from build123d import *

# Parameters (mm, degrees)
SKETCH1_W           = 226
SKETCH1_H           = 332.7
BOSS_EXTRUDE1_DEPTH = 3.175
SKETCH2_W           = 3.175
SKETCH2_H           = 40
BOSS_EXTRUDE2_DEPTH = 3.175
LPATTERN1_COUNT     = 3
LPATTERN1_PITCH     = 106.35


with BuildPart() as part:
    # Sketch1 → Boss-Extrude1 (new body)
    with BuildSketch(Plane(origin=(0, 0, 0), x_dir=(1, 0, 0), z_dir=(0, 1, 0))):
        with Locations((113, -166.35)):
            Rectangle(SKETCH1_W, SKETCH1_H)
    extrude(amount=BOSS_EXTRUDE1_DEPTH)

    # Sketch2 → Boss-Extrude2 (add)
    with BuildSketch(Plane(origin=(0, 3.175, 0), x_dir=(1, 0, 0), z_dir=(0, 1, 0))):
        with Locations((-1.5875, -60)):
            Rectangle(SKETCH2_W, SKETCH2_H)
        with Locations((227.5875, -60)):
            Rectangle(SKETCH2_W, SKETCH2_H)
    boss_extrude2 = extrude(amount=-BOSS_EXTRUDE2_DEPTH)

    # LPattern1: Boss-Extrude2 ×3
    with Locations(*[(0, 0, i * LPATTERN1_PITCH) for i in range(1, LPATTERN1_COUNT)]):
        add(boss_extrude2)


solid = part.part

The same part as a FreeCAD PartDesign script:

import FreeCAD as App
import Part
import Sketcher
from FreeCAD import Vector

doc = App.newDocument("Part")
body = doc.addObject("PartDesign::Body", "Body")

sketch1 = body.newObject("Sketcher::SketchObject", "Sketch")
sketch1.AttachmentSupport = (doc.getObject("XZ_Plane"), [""])
sketch1.MapMode = "FlatFace"
sketch1.addGeometry([
    Part.LineSegment(Vector(0, 0, 0), Vector(0, 333, 0)),
    Part.LineSegment(Vector(0, 333, 0), Vector(226, 333, 0)),
    Part.LineSegment(Vector(226, 333, 0), Vector(226, 0, 0)),
    Part.LineSegment(Vector(226, 0, 0), Vector(0, 0, 0)),
], False)
sketch1.addConstraint([
    Sketcher.Constraint("Coincident", 0, 2, 1, 1),
    Sketcher.Constraint("Coincident", 1, 2, 2, 1),
    Sketcher.Constraint("Coincident", 2, 2, 3, 1),
    Sketcher.Constraint("Coincident", 3, 2, 0, 1),
    Sketcher.Constraint("Vertical", 0),
    Sketcher.Constraint("Horizontal", 1),
    Sketcher.Constraint("Vertical", 2),
    Sketcher.Constraint("Horizontal", 3),
    Sketcher.Constraint("Coincident", 3, 2, -1, 1),
    Sketcher.Constraint("DistanceX", 1, 1, 1, 2, 226.0),
    Sketcher.Constraint("DistanceY", 0, 1, 0, 2, 332.7),
])
pad1 = body.newObject("PartDesign::Pad", "Pad")
pad1.Profile = sketch1
pad1.Length = 3.175
pad1.Reversed = True

sketch2 = body.newObject("Sketcher::SketchObject", "Sketch001")
sketch2.AttachmentSupport = (doc.getObject("XZ_Plane"), [""])
sketch2.MapMode = "FlatFace"
sketch2.AttachmentOffset = App.Placement(Vector(0, 0, -3.175), App.Rotation())
sketch2.addGeometry([
    Part.LineSegment(Vector(-3.2, 40, 0), Vector(-3.2, 80, 0)),
    Part.LineSegment(Vector(-3.2, 80, 0), Vector(0, 80, 0)),
    Part.LineSegment(Vector(0, 80, 0), Vector(0, 40, 0)),
    Part.LineSegment(Vector(0, 40, 0), Vector(-3.2, 40, 0)),
    Part.LineSegment(Vector(226, 40, 0), Vector(226, 80, 0)),
    Part.LineSegment(Vector(226, 80, 0), Vector(229.2, 80, 0)),
    Part.LineSegment(Vector(229.2, 80, 0), Vector(229.2, 40, 0)),
    Part.LineSegment(Vector(229.2, 40, 0), Vector(226, 40, 0)),
], False)
sketch2.addConstraint([
    Sketcher.Constraint("Coincident", 0, 2, 1, 1),
    Sketcher.Constraint("Coincident", 1, 2, 2, 1),
    Sketcher.Constraint("Coincident", 2, 2, 3, 1),
    Sketcher.Constraint("Coincident", 3, 2, 0, 1),
    Sketcher.Constraint("Coincident", 4, 2, 5, 1),
    Sketcher.Constraint("Coincident", 5, 2, 6, 1),
    Sketcher.Constraint("Coincident", 6, 2, 7, 1),
    Sketcher.Constraint("Coincident", 7, 2, 4, 1),
    Sketcher.Constraint("Vertical", 0),
    Sketcher.Constraint("Horizontal", 1),
    Sketcher.Constraint("Vertical", 2),
    Sketcher.Constraint("Horizontal", 3),
    Sketcher.Constraint("Vertical", 4),
    Sketcher.Constraint("Horizontal", 5),
    Sketcher.Constraint("Vertical", 6),
    Sketcher.Constraint("Horizontal", 7),
    Sketcher.Constraint("PointOnObject", 1, 2, -2),
    Sketcher.Constraint("Horizontal", 1, 2, 4, 2),
    Sketcher.Constraint("Horizontal", 3, 2, 6, 2),
    Sketcher.Constraint("Equal", 3, 5),
    Sketcher.Constraint("DistanceY", 0, 1, 0, 2, 40.0),
    Sketcher.Constraint("DistanceY", -1, 1, 0, 2, 80.0),
    Sketcher.Constraint("DistanceX", -1, 1, 4, 2, 226.0),
    Sketcher.Constraint("DistanceX", 1, 1, 1, 2, 3.175),
])
pad2 = body.newObject("PartDesign::Pad", "Pad001")
pad2.Profile = sketch2
pad2.Length = 3.175
doc.recompute()

linearpattern = body.newObject("PartDesign::LinearPattern", "LinearPattern")
linearpattern.Originals = [pad2]
linearpattern.Direction = (doc.getObject("Z_Axis"), [""])
linearpattern.Mode = "offset"
linearpattern.Offset = 106.35
linearpattern.Occurrences = 3
body.Tip = linearpattern

doc.recompute()
